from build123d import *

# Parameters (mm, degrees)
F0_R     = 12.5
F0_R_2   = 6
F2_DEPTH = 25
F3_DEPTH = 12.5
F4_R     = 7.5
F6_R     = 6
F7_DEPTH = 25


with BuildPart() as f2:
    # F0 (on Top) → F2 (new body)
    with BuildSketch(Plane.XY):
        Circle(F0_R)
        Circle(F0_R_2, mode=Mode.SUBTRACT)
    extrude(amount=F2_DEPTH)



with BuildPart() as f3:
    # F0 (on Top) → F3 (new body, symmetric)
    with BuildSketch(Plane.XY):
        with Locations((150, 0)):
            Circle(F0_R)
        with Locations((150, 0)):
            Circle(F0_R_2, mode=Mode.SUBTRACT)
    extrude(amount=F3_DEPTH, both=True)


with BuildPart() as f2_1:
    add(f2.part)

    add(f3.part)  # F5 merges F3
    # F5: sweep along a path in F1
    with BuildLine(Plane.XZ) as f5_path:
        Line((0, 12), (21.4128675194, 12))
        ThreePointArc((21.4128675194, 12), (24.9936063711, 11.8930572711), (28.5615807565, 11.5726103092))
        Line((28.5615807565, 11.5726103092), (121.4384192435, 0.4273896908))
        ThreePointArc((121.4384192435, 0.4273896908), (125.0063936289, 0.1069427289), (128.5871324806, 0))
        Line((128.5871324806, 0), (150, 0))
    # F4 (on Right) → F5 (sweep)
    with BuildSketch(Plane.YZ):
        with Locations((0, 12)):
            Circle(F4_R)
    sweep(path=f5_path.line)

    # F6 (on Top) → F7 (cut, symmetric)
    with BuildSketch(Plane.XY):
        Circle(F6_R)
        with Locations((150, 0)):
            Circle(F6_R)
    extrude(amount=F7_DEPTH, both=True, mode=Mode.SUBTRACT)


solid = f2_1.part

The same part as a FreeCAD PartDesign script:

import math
import FreeCAD as App
import Part
import Sketcher
from FreeCAD import Vector

doc = App.newDocument("Part")
params = doc.addObject("Spreadsheet::Sheet", "Params")
for row, (alias, value) in enumerate([
    ("sketch1_diameter", "25 mm"),
    ("sketch1_diameter2", "12 mm"),
    ("pad1_length", "25 mm"),
    ("sketch2_diameter", "25 mm"),
    ("sketch2_diameter2", "12 mm"),
    ("pad2_length", "25 mm"),
    ("sketch3_diameter", "15 mm"),
    ("sketch4_radius", "60 mm"),
    ("sketch5_diameter", "12 mm"),
    ("pocket1_length", "50 mm"),
], start=1):
    params.set(f"A{row}", alias)
    params.set(f"B{row}", "=" + value)
    params.setAlias(f"B{row}", alias)

body = doc.addObject("PartDesign::Body", "Body")

sketch1 = body.newObject("Sketcher::SketchObject", "Sketch")
sketch1.AttachmentSupport = (doc.getObject("XY_Plane"), [""])
sketch1.MapMode = "FlatFace"
sketch1.addGeometry(Part.Circle(Vector(0, 0, 0), Vector(0, 0, 1), 12), False)
sketch1.addGeometry(Part.Circle(Vector(0, 0, 0), Vector(0, 0, 1), 6), False)
sketch1.addConstraint(Sketcher.Constraint("Coincident", 0, 3, -1, 1))
sketch1.addConstraint(Sketcher.Constraint("Coincident", 1, 3, -1, 1))
sketch1.addConstraint(Sketcher.Constraint("Diameter", 0, 25.0))
sketch1.addConstraint(Sketcher.Constraint("Diameter", 1, 12.0))
sketch1.setExpression("Constraints[2]", "Params.sketch1_diameter")
sketch1.setExpression("Constraints[3]", "Params.sketch1_diameter2")
pad1 = body.newObject("PartDesign::Pad", "Pad")
pad1.Profile = sketch1
pad1.setExpression("Length", "Params.pad1_length")
body2 = doc.addObject("PartDesign::Body", "Body001")

sketch2 = body2.newObject("Sketcher::SketchObject", "Sketch001")
sketch2.AttachmentSupport = (doc.getObject("XY_Plane001"), [""])
sketch2.MapMode = "FlatFace"
sketch2.addGeometry(Part.Circle(Vector(150, 0, 0), Vector(0, 0, 1), 12), False)
sketch2.addGeometry(Part.Circle(Vector(150, 0, 0), Vector(0, 0, 1), 6), False)
sketch2.addConstraint(Sketcher.Constraint("Coincident", 1, 3, 0, 3))
sketch2.addConstraint(Sketcher.Constraint("PointOnObject", 0, 3, -1))
sketch2.addConstraint(Sketcher.Constraint("Diameter", 0, 25.0))
sketch2.addConstraint(Sketcher.Constraint("Diameter", 1, 12.0))
sketch2.addConstraint(Sketcher.Constraint("DistanceX", -1, 1, 0, 3, 150.0))
sketch2.setExpression("Constraints[2]", "Params.sketch2_diameter")
sketch2.setExpression("Constraints[3]", "Params.sketch2_diameter2")
pad2 = body2.newObject("PartDesign::Pad", "Pad001")
pad2.Profile = sketch2
pad2.setExpression("Length", "Params.pad2_length")
pad2.Midplane = True
body.AllowCompound = True
doc.recompute()

boolean = body.newObject("PartDesign::Boolean", "Boolean")
boolean.Type = "Fuse"
boolean.addObjects([body2])

sketch3 = body.newObject("Sketcher::SketchObject", "Sketch002")
sketch3.AttachmentSupport = (doc.getObject("YZ_Plane"), [""])
sketch3.MapMode = "FlatFace"
sketch3.addGeometry(Part.Circle(Vector(0, 12, 0), Vector(0, 0, 1), 8), False)
sketch3.addConstraint(Sketcher.Constraint("PointOnObject", 0, 3, -2))
sketch3.addConstraint(Sketcher.Constraint("Diameter", 0, 15.0))
sketch3.addConstraint(Sketcher.Constraint("DistanceY", -1, 1, 0, 3, 12.0))
sketch3.setExpression("Constraints[1]", "Params.sketch3_diameter")

sketch4 = body.newObject("Sketcher::SketchObject", "Sketch003")
sketch4.AttachmentSupport = (doc.getObject("XZ_Plane"), [""])
sketch4.MapMode = "FlatFace"
sketch4.addGeometry(Part.LineSegment(Vector(0, 12, 0), Vector(21, 12, 0)), False)
sketch4.addGeometry(Part.ArcOfCircle(Part.Circle(Vector(21, -48, 0), Vector(0, 0, 1), 60), math.radians(83.16), math.radians(90)), False)
sketch4.addGeometry(Part.LineSegment(Vector(29, 12, 0), Vector(121, 0, 0)), False)
sketch4.addGeometry(Part.ArcOfCircle(Part.Circle(Vector(129, 60, 0), Vector(0, 0, 1), 60), math.radians(-96.84), math.radians(-90)), False)
sketch4.addGeometry(Part.LineSegment(Vector(129, 0, 0), Vector(150, 0, 0)), False)
sketch4.addConstraint(Sketcher.Constraint("Tangent", 0, 2, 1, 2))
sketch4.addConstraint(Sketcher.Constraint("Tangent", 1, 1, 2, 1))
sketch4.addConstraint(Sketcher.Constraint("Tangent", 2, 2, 3, 1))
sketch4.addConstraint(Sketcher.Constraint("Tangent", 3, 2, 4, 1))
sketch4.addConstraint(Sketcher.Constraint("Horizontal", 0))
sketch4.addConstraint(Sketcher.Constraint("Horizontal", 4))
sketch4.addConstraint(Sketcher.Constraint("Equal", 1, 3))
sketch4.addConstraint(Sketcher.Constraint("PointOnObject", 0, 1, -2))
sketch4.addConstraint(Sketcher.Constraint("PointOnObject", 3, 2, -1))
sketch4.addConstraint(Sketcher.Constraint("Equal", 0, 4))
sketch4.addConstraint(Sketcher.Constraint("Radius", 1, 60.0))
sketch4.addConstraint(Sketcher.Constraint("DistanceY", 1, 3, -1, 1, 48.0))
sketch4.addConstraint(Sketcher.Constraint("DistanceX", -1, 1, 4, 2, 150.0))
sketch4.addConstraint(Sketcher.Constraint("Distance", 2, 93.543162))
sketch4.setExpression("Constraints[10]", "Params.sketch4_radius")
doc.recompute()

additivepipe = body.newObject("PartDesign::AdditivePipe", "AdditivePipe")
additivepipe.Profile = sketch3
additivepipe.Spine = (sketch4, ["Edge1", "Edge2", "Edge3", "Edge4", "Edge5"])

sketch5 = body.newObject("Sketcher::SketchObject", "Sketch004")
sketch5.AttachmentSupport = (doc.getObject("XY_Plane"), [""])
sketch5.MapMode = "FlatFace"
sketch5.addGeometry(Part.Circle(Vector(0, 0, 0), Vector(0, 0, 1), 6), False)
sketch5.addGeometry(Part.Circle(Vector(150, 0, 0), Vector(0, 0, 1), 6), False)
sketch5.addConstraint(Sketcher.Constraint("Coincident", 0, 3, -1, 1))
sketch5.addConstraint(Sketcher.Constraint("Equal", 0, 1))
sketch5.addConstraint(Sketcher.Constraint("PointOnObject", 1, 3, -1))
sketch5.addConstraint(Sketcher.Constraint("Diameter", 0, 12.0))
sketch5.addConstraint(Sketcher.Constraint("DistanceX", -1, 1, 1, 3, 150.0))
sketch5.setExpression("Constraints[3]", "Params.sketch5_diameter")
pocket1 = body.newObject("PartDesign::Pocket", "Pocket")
pocket1.Profile = sketch5
pocket1.setExpression("Length", "Params.pocket1_length")
pocket1.Midplane = True

doc.recompute()
